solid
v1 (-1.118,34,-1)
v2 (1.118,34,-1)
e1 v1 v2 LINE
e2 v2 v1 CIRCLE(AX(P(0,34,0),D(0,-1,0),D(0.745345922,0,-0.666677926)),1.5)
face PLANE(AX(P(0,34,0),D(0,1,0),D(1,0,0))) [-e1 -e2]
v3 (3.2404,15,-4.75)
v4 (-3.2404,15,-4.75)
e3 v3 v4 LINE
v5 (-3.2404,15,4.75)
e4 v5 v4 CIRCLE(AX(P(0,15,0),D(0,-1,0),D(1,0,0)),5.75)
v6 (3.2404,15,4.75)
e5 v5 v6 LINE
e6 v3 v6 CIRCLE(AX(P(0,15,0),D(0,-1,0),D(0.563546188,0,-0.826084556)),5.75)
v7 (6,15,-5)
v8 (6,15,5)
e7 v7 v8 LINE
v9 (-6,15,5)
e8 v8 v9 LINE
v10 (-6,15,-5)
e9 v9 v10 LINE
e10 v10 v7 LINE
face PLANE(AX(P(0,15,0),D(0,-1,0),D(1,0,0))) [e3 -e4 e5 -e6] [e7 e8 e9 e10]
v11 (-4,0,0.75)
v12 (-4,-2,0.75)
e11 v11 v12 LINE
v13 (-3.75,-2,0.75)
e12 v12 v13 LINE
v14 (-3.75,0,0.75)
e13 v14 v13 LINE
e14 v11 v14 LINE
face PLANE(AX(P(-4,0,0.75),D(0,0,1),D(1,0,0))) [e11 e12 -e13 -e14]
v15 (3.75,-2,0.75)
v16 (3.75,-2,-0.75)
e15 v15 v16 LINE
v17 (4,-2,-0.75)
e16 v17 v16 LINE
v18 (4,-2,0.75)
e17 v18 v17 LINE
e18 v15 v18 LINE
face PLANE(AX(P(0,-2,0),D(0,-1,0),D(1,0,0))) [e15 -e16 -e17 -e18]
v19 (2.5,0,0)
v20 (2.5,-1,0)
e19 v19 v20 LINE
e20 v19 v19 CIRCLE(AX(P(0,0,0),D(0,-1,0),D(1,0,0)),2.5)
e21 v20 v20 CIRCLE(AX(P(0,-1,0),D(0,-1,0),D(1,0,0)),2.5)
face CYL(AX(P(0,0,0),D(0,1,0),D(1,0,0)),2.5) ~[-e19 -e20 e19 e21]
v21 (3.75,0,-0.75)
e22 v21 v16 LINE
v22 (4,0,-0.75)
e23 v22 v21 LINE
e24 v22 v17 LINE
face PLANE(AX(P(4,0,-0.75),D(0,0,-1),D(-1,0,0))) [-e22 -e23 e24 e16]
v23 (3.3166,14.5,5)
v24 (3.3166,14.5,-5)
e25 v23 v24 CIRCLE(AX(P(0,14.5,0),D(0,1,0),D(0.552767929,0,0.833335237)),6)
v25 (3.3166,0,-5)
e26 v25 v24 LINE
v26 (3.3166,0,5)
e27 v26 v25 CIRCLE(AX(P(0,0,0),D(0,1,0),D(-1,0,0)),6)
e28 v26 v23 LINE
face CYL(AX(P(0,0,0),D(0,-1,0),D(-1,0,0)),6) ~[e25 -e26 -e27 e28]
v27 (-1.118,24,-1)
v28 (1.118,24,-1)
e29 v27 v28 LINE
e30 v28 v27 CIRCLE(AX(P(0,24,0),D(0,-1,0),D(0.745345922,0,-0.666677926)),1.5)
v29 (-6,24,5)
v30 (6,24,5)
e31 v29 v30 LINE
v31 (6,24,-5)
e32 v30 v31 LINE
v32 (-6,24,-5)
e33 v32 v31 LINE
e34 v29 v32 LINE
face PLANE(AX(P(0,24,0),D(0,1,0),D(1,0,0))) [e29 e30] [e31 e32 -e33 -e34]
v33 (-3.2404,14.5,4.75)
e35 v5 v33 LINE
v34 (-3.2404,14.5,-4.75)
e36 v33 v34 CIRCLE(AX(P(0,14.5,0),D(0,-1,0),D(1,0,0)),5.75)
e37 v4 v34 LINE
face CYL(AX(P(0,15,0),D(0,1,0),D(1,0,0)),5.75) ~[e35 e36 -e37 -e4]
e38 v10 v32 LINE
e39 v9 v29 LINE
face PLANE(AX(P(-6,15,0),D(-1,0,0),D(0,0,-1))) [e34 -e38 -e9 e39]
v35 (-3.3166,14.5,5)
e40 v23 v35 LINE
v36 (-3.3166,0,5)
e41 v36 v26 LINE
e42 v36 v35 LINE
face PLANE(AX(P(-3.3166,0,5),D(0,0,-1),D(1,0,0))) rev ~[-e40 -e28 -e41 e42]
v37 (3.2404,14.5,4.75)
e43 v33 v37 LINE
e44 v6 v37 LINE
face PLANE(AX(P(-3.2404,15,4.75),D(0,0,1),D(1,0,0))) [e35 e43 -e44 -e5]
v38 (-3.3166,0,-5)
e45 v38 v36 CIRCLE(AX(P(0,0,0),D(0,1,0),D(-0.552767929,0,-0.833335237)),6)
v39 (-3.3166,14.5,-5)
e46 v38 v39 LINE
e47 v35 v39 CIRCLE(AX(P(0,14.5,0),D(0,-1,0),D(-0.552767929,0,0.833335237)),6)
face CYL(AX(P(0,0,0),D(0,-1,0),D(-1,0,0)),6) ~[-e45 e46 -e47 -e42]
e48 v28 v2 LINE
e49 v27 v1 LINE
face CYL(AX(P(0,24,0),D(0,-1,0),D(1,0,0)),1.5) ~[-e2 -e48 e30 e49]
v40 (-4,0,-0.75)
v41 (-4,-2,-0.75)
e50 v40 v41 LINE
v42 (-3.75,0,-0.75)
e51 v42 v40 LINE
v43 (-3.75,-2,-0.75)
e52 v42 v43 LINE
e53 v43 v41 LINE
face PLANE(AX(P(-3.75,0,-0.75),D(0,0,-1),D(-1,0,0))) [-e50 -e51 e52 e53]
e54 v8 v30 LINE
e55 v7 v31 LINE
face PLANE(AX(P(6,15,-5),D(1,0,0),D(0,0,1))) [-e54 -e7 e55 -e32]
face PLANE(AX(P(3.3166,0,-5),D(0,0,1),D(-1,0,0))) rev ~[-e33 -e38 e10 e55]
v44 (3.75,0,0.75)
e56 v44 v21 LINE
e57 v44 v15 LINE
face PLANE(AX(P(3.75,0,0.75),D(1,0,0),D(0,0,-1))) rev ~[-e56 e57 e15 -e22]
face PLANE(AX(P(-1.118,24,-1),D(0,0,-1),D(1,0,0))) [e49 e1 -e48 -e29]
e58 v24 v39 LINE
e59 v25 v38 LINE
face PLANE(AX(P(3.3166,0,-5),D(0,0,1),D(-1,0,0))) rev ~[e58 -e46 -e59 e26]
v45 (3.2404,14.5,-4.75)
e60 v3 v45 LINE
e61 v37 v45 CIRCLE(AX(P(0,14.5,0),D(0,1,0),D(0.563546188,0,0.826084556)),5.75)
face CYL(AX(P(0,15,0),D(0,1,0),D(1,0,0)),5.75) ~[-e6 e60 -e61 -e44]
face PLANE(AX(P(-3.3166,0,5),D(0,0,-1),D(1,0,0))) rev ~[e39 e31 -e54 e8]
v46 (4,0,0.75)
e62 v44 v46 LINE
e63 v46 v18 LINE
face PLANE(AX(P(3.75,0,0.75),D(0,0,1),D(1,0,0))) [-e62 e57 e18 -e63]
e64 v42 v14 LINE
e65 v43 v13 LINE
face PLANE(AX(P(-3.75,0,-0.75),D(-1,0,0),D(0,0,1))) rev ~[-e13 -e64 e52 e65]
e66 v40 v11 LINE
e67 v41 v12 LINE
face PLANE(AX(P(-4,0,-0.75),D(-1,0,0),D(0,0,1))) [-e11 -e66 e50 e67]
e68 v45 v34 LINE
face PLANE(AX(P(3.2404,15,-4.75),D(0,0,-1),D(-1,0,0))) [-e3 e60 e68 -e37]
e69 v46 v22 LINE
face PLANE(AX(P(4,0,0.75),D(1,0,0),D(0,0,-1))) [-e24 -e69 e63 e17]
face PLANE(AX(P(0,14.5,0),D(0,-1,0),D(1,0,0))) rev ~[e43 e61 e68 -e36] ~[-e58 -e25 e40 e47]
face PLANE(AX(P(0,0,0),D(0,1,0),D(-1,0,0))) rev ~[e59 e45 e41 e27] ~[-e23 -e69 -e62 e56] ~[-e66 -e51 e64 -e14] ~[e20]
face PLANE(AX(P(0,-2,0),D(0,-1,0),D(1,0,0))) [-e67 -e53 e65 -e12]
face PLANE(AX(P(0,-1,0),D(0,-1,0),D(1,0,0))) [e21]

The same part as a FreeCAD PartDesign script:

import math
import FreeCAD as App
import Part
import Sketcher
from FreeCAD import Vector
Q = App.Units.Quantity


def add_polygon(sketch, points):
    """Adds a closed chain of lines whose ends are joined by coincident constraints."""
    first, n = sketch.GeometryCount, len(points)
    for a, b in zip(points, points[1:] + points[:1]):
        sketch.addGeometry(Part.LineSegment(App.Vector(*a, 0), App.Vector(*b, 0)), False)
    for i in range(n):
        sketch.addConstraint(Sketcher.Constraint("Coincident", first + i, 2, first + (i + 1) % n, 1))

doc = App.newDocument("Part")
body = doc.addObject("PartDesign::Body", "Body")

# Sketch on XZ plane
sketch1 = body.newObject("Sketcher::SketchObject", "Sketch")
sketch1.AttachmentSupport = (doc.getObject("XZ_Plane"), [""])
sketch1.MapMode = "FlatFace"
sketch1.addGeometry(Part.ArcOfCircle(Part.Circle(Vector(0, 0, 0), Vector(0, 0, 1), 6), math.radians(124), math.radians(236)), False)
sketch1.addGeometry(Part.LineSegment(Vector(-3, 5, 0), Vector(3, 5, 0)), False)
sketch1.addGeometry(Part.ArcOfCircle(Part.Circle(Vector(0, 0, 0), Vector(0, 0, 1), 6), math.radians(-56), math.radians(56)), False)
sketch1.addGeometry(Part.LineSegment(Vector(3, -5, 0), Vector(-3, -5, 0)), False)
sketch1.addConstraint(Sketcher.Constraint("Coincident", 0, 1, 1, 1))
sketch1.addConstraint(Sketcher.Constraint("Coincident", 1, 2, 2, 2))
sketch1.addConstraint(Sketcher.Constraint("Coincident", 2, 1, 3, 1))
sketch1.addConstraint(Sketcher.Constraint("Coincident", 3, 2, 0, 2))
sketch1.addConstraint(Sketcher.Constraint("Horizontal", 1))
sketch1.addConstraint(Sketcher.Constraint("Horizontal", 3))
sketch1.addConstraint(Sketcher.Constraint("Coincident", 0, 3, -1, 1))
sketch1.addConstraint(Sketcher.Constraint("Coincident", 2, 3, -1, 1))
sketch1.addConstraint(Sketcher.Constraint("Equal", 0, 2))
sketch1.addConstraint(Sketcher.Constraint("Vertical", 1, 2, 2, 1))
sketch1.addConstraint(Sketcher.Constraint("Radius", 0, Q("6 mm")))
sketch1.addConstraint(Sketcher.Constraint("DistanceY", 2, 1, 1, 2, Q("10 mm")))
pad1 = body.newObject("PartDesign::Pad", "Pad")
pad1.Profile = sketch1
pad1.Length = 15
pad1.Reversed = True

# Sketch on XZ plane
sketch2 = body.newObject("Sketcher::SketchObject", "Sketch001")
sketch2.AttachmentSupport = (doc.getObject("XZ_Plane"), [""])
sketch2.MapMode = "FlatFace"
sketch2.addGeometry(Part.Circle(Vector(0, 0, 0), Vector(0, 0, 1), 2.5), False)
sketch2.addConstraint(Sketcher.Constraint("Coincident", 0, 3, -1, 1))
sketch2.addConstraint(Sketcher.Constraint("Diameter", 0, Q("5 mm")))
pad2 = body.newObject("PartDesign::Pad", "Pad001")
pad2.Profile = sketch2
pad2.Length = 1

# Sketch on XZ plane
sketch3 = body.newObject("Sketcher::SketchObject", "Sketch002")
sketch3.AttachmentSupport = (doc.getObject("XZ_Plane"), [""])
sketch3.MapMode = "FlatFace"
add_polygon(sketch3, [(3.75, -0.75), (4, -0.75), (4, 0.75), (3.75, 0.75)])  # lines 0-3
add_polygon(sketch3, [(-4, -0.75), (-3.75, -0.75), (-3.75, 0.75), (-4, 0.75)])  # lines 4-7
sketch3.addConstraint(Sketcher.Constraint("Horizontal", 0))
sketch3.addConstraint(Sketcher.Constraint("Vertical", 1))
sketch3.addConstraint(Sketcher.Constraint("Horizontal", 2))
sketch3.addConstraint(Sketcher.Constraint("Vertical", 3))
sketch3.addConstraint(Sketcher.Constraint("Horizontal", 4))
sketch3.addConstraint(Sketcher.Constraint("Vertical", 5))
sketch3.addConstraint(Sketcher.Constraint("Horizontal", 6))
sketch3.addConstraint(Sketcher.Constraint("Vertical", 7))
sketch3.addConstraint(Sketcher.Constraint("Symmetric", 2, 2, 4, 2, -1, 1))
sketch3.addConstraint(Sketcher.Constraint("Symmetric", 0, 2, 6, 2, -1, 1))
sketch3.addConstraint(Sketcher.Constraint("Horizontal", 3, 2, 4, 2))
sketch3.addConstraint(Sketcher.Constraint("DistanceY", 1, 1, 1, 2, Q("1.5 mm")))
sketch3.addConstraint(Sketcher.Constraint("DistanceX", 6, 2, 1, 2, Q("8 mm")))
sketch3.addConstraint(Sketcher.Constraint("DistanceX", 4, 2, 3, 2, Q("7.5 mm")))
pad3 = body.newObject("PartDesign::Pad", "Pad002")
pad3.Profile = sketch3
pad3.Length = 2

# Sketch on XZ plane
sketch4 = body.newObject("Sketcher::SketchObject", "Sketch003")
sketch4.AttachmentSupport = (doc.getObject("XZ_Plane"), [""])
sketch4.MapMode = "FlatFace"
sketch4.AttachmentOffset = App.Placement(Vector(0, 0, -15), App.Rotation())
add_polygon(sketch4, [(-6, -5), (-6, 5), (6, 5), (6, -5)])  # lines 0-3
sketch4.addConstraint(Sketcher.Constraint("Vertical", 0))
sketch4.addConstraint(Sketcher.Constraint("Horizontal", 1))
sketch4.addConstraint(Sketcher.Constraint("Vertical", 2))
sketch4.addConstraint(Sketcher.Constraint("Horizontal", 3))
sketch4.addConstraint(Sketcher.Constraint("Symmetric", 0, 2, 2, 2, -1, 1))
sketch4.addConstraint(Sketcher.Constraint("DistanceX", 1, 1, 1, 2, Q("12 mm")))
sketch4.addConstraint(Sketcher.Constraint("DistanceY", 0, 1, 0, 2, Q("10 mm")))
pad4 = body.newObject("PartDesign::Pad", "Pad003")
pad4.Profile = sketch4
pad4.Length = 9
pad4.Reversed = True

# Sketch on XZ plane
sketch5 = body.newObject("Sketcher::SketchObject", "Sketch004")
sketch5.AttachmentSupport = (doc.getObject("XZ_Plane"), [""])
sketch5.MapMode = "FlatFace"
sketch5.AttachmentOffset = App.Placement(Vector(0, 0, -24), App.Rotation())
sketch5.addGeometry(Part.ArcOfCircle(Part.Circle(Vector(0, 0, 0), Vector(0, 0, 1), 1.5), math.radians(-42), math.radians(222)), False)
sketch5.addGeometry(Part.LineSegment(Vector(-1.1, -1, 0), Vector(1.1, -1, 0)), False)
sketch5.addConstraint(Sketcher.Constraint("Coincident", 0, 1, 1, 2))
sketch5.addConstraint(Sketcher.Constraint("Coincident", 1, 1, 0, 2))
sketch5.addConstraint(Sketcher.Constraint("Horizontal", 1))
sketch5.addConstraint(Sketcher.Constraint("Coincident", 0, 3, -1, 1))
sketch5.addConstraint(Sketcher.Constraint("Radius", 0, Q("1.5 mm")))
sketch5.addConstraint(Sketcher.Constraint("DistanceY", 0, 1, -1, 1, Q("1 mm")))
pad5 = body.newObject("PartDesign::Pad", "Pad004")
pad5.Profile = sketch5
pad5.Length = 10
pad5.Reversed = True

# Sketch on XZ plane
sketch6 = body.newObject("Sketcher::SketchObject", "Sketch005")
sketch6.AttachmentSupport = (doc.getObject("XZ_Plane"), [""])
sketch6.MapMode = "FlatFace"
sketch6.AttachmentOffset = App.Placement(Vector(0, 0, -15), App.Rotation())
add_polygon(sketch6, [(6, -5), (6, 5), (-6, 5), (-6, -5)])  # lines 0-3
sketch6.addGeometry(Part.LineSegment(Vector(3, -5, 0), Vector(-3, -5, 0)), False)  # 4
sketch6.addGeometry(Part.ArcOfCircle(Part.Circle(Vector(0, 0, 0), Vector(0, 0, 1), 6), math.radians(124), math.radians(236)), False)  # 5
sketch6.addGeometry(Part.LineSegment(Vector(-3, 5, 0), Vector(3, 5, 0)), False)  # 6
sketch6.addGeometry(Part.ArcOfCircle(Part.Circle(Vector(0, 0, 0), Vector(0, 0, 1), 6), math.radians(-56), math.radians(56)), False)  # 7
sketch6.addConstraint(Sketcher.Constraint("Coincident", 4, 2, 5, 2))
sketch6.addConstraint(Sketcher.Constraint("Coincident", 5, 1, 6, 1))
sketch6.addConstraint(Sketcher.Constraint("Coincident", 6, 2, 7, 2))
sketch6.addConstraint(Sketcher.Constraint("Coincident", 7, 1, 4, 1))
sketch6.addConstraint(Sketcher.Constraint("Vertical", 0))
sketch6.addConstraint(Sketcher.Constraint("Horizontal", 1))
sketch6.addConstraint(Sketcher.Constraint("Vertical", 2))
sketch6.addConstraint(Sketcher.Constraint("Horizontal", 3))
sketch6.addConstraint(Sketcher.Constraint("Horizontal", 4))
sketch6.addConstraint(Sketcher.Constraint("Horizontal", 6))
sketch6.addConstraint(Sketcher.Constraint("Coincident", 5, 3, -1, 1))
sketch6.addConstraint(Sketcher.Constraint("Coincident", 7, 3, -1, 1))
sketch6.addConstraint(Sketcher.Constraint("Equal", 5, 7))
sketch6.addConstraint(Sketcher.Constraint("Symmetric", 0, 2, 2, 2, -1, 1))
sketch6.addConstraint(Sketcher.Constraint("Vertical", 4, 2, 5, 1))
sketch6.addConstraint(Sketcher.Constraint("Radius", 5, Q("5.75 mm")))
sketch6.addConstraint(Sketcher.Constraint("DistanceY", 4, 2, 5, 1, Q("9.5 mm")))
sketch6.addConstraint(Sketcher.Constraint("DistanceX", 1, 2, 1, 1, Q("12 mm")))
sketch6.addConstraint(Sketcher.Constraint("DistanceY", 0, 1, 0, 2, Q("10 mm")))
pocket1 = body.newObject("PartDesign::Pocket", "Pocket")
pocket1.Profile = sketch6
pocket1.Length = 0.5
pocket1.Reversed = True

doc.recompute()
